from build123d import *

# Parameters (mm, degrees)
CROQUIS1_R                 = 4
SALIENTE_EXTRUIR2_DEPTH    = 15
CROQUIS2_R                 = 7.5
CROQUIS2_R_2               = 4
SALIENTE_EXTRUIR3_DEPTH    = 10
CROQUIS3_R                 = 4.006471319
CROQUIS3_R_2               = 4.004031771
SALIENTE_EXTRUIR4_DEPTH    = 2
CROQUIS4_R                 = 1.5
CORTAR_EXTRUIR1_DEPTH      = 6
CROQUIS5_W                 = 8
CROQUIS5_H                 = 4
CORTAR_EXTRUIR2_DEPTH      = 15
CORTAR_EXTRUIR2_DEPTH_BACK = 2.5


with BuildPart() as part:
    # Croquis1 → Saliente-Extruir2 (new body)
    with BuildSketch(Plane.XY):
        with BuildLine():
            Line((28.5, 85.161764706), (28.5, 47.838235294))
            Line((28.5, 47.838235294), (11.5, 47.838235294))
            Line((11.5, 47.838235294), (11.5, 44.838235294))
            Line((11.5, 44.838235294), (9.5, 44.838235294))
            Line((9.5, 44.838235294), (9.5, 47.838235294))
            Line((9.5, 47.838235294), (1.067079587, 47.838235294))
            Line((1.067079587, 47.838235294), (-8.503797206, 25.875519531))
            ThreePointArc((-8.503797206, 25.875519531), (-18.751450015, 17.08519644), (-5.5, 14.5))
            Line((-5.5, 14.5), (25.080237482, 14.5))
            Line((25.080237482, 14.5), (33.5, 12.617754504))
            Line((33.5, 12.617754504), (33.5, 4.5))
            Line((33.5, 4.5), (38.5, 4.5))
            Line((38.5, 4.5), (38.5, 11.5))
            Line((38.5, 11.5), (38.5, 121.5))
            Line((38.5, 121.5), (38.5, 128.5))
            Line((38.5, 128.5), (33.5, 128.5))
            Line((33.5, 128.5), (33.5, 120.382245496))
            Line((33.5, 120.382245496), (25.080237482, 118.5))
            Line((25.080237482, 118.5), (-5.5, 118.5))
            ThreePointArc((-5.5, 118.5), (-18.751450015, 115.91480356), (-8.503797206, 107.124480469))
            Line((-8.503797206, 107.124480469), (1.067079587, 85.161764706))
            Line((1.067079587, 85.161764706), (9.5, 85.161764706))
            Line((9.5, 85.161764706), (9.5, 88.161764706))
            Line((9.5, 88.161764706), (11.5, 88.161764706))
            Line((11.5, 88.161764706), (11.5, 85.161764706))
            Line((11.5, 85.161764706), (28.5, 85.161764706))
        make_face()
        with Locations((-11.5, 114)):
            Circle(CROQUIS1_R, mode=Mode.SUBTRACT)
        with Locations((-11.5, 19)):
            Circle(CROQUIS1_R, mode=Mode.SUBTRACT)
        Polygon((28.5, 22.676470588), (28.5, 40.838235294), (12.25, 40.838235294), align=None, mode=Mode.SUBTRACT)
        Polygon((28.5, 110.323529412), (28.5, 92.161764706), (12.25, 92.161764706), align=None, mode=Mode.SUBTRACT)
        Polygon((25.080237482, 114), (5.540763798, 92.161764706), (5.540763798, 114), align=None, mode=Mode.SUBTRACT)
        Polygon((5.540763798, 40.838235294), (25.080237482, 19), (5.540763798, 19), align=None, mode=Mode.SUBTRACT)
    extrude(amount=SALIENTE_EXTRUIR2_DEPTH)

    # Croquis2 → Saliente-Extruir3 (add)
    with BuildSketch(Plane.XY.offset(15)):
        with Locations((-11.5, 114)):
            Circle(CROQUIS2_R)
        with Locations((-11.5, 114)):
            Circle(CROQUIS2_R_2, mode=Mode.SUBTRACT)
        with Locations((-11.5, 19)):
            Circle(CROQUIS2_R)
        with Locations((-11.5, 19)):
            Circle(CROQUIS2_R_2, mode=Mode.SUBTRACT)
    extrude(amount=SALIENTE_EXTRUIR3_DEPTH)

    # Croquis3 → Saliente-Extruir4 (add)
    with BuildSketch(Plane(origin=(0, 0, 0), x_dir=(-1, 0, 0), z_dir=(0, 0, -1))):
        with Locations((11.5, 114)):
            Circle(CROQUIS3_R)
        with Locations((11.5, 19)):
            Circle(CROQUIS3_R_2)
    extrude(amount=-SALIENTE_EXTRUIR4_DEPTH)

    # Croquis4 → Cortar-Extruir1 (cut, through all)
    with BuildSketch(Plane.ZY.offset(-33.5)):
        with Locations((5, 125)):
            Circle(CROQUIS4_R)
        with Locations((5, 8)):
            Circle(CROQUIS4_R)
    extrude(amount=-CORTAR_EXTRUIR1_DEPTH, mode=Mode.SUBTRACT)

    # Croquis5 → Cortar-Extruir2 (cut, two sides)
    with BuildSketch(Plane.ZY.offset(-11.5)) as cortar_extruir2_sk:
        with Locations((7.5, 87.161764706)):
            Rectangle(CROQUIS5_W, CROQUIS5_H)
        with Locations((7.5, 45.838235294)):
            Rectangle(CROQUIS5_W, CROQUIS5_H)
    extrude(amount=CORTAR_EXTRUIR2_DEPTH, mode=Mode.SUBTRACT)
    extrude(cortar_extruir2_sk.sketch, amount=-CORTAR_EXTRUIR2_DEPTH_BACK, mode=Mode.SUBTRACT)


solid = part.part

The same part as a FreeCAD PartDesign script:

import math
import FreeCAD as App
import Part
import Sketcher

V = App.Vector

doc = App.newDocument("Part")
body = doc.addObject("PartDesign::Body", "Body")

sketch1 = body.newObject("Sketcher::SketchObject", "Sketch")
sketch1.AttachmentSupport = (doc.getObject("XY_Plane"), [""])
sketch1.MapMode = "FlatFace"
sketch1.addGeometry([
    Part.LineSegment(V(28.5, 85.161765, 0), V(28.5, 47.838235, 0)),
    Part.LineSegment(V(28.5, 47.838235, 0), V(11.5, 47.838235, 0)),
    Part.LineSegment(V(11.5, 47.838235, 0), V(11.5, 44.838235, 0)),
    Part.LineSegment(V(11.5, 44.838235, 0), V(9.5, 44.838235, 0)),
    Part.LineSegment(V(9.5, 44.838235, 0), V(9.5, 47.838235, 0)),
    Part.LineSegment(V(9.5, 47.838235, 0), V(1.06708, 47.838235, 0)),
    Part.LineSegment(V(1.06708, 47.838235, 0), V(-8.503797, 25.87552, 0)),
    Part.ArcOfCircle(Part.Circle(V(-11.5, 19, 0), V(0, 0, 1), 7.5), math.radians(66.453469), math.radians(323.130102)),
    Part.LineSegment(V(-5.5, 14.5, 0), V(25.080237, 14.5, 0)),
    Part.LineSegment(V(25.080237, 14.5, 0), V(33.5, 12.617755, 0)),
    Part.LineSegment(V(33.5, 12.617755, 0), V(33.5, 4.5, 0)),
    Part.LineSegment(V(33.5, 4.5, 0), V(38.5, 4.5, 0)),
    Part.LineSegment(V(38.5, 4.5, 0), V(38.5, 128.5, 0)),
    Part.LineSegment(V(38.5, 128.5, 0), V(33.5, 128.5, 0)),
    Part.LineSegment(V(33.5, 128.5, 0), V(33.5, 120.382245, 0)),
    Part.LineSegment(V(33.5, 120.382245, 0), V(25.080237, 118.5, 0)),
    Part.LineSegment(V(25.080237, 118.5, 0), V(-5.5, 118.5, 0)),
    Part.ArcOfCircle(Part.Circle(V(-11.5, 114, 0), V(0, 0, 1), 7.5), math.radians(36.869898), math.radians(293.546531)),
    Part.LineSegment(V(-8.503797, 107.12448, 0), V(1.06708, 85.161765, 0)),
    Part.LineSegment(V(1.06708, 85.161765, 0), V(9.5, 85.161765, 0)),
    Part.LineSegment(V(9.5, 85.161765, 0), V(9.5, 88.161765, 0)),
    Part.LineSegment(V(9.5, 88.161765, 0), V(11.5, 88.161765, 0)),
    Part.LineSegment(V(11.5, 88.161765, 0), V(11.5, 85.161765, 0)),
    Part.LineSegment(V(11.5, 85.161765, 0), V(28.5, 85.161765, 0)),
    Part.Circle(V(-11.5, 19, 0), V(0, 0, 1), 4),
    Part.LineSegment(V(5.540764, 19, 0), V(5.540764, 40.838235, 0)),
    Part.LineSegment(V(5.540764, 40.838235, 0), V(25.080237, 19, 0)),
    Part.LineSegment(V(25.080237, 19, 0), V(5.540764, 19, 0)),
    Part.LineSegment(V(28.5, 40.838235, 0), V(28.5, 22.676471, 0)),
    Part.LineSegment(V(28.5, 22.676471, 0), V(12.25, 40.838235, 0)),
    Part.LineSegment(V(12.25, 40.838235, 0), V(28.5, 40.838235, 0)),
    Part.Circle(V(-11.5, 114, 0), V(0, 0, 1), 4),
    Part.LineSegment(V(5.540764, 114, 0), V(25.080237, 114, 0)),
    Part.LineSegment(V(25.080237, 114, 0), V(5.540764, 92.161765, 0)),
    Part.LineSegment(V(5.540764, 92.161765, 0), V(5.540764, 114, 0)),
    Part.LineSegment(V(12.25, 92.161765, 0), V(28.5, 110.323529, 0)),
    Part.LineSegment(V(28.5, 110.323529, 0), V(28.5, 92.161765, 0)),
    Part.LineSegment(V(28.5, 92.161765, 0), V(12.25, 92.161765, 0)),
], False)
sketch1.addConstraint([
    Sketcher.Constraint("Coincident", 0, 2, 1, 1),
    Sketcher.Constraint("Coincident", 1, 2, 2, 1),
    Sketcher.Constraint("Coincident", 2, 2, 3, 1),
    Sketcher.Constraint("Coincident", 3, 2, 4, 1),
    Sketcher.Constraint("Coincident", 4, 2, 5, 1),
    Sketcher.Constraint("Coincident", 5, 2, 6, 1),
    Sketcher.Constraint("Coincident", 6, 2, 7, 1),
    Sketcher.Constraint("Coincident", 7, 2, 8, 1),
    Sketcher.Constraint("Coincident", 8, 2, 9, 1),
    Sketcher.Constraint("Coincident", 9, 2, 10, 1),
    Sketcher.Constraint("Coincident", 10, 2, 11, 1),
    Sketcher.Constraint("Coincident", 11, 2, 12, 1),
    Sketcher.Constraint("Coincident", 12, 2, 13, 1),
    Sketcher.Constraint("Coincident", 13, 2, 14, 1),
    Sketcher.Constraint("Coincident", 14, 2, 15, 1),
    Sketcher.Constraint("Coincident", 15, 2, 16, 1),
    Sketcher.Constraint("Coincident", 16, 2, 17, 1),
    Sketcher.Constraint("Coincident", 17, 2, 18, 1),
    Sketcher.Constraint("Coincident", 18, 2, 19, 1),
    Sketcher.Constraint("Coincident", 19, 2, 20, 1),
    Sketcher.Constraint("Coincident", 20, 2, 21, 1),
    Sketcher.Constraint("Coincident", 21, 2, 22, 1),
    Sketcher.Constraint("Coincident", 22, 2, 23, 1),
    Sketcher.Constraint("Coincident", 23, 2, 0, 1),
    Sketcher.Constraint("Coincident", 25, 2, 26, 1),
    Sketcher.Constraint("Coincident", 26, 2, 27, 1),
    Sketcher.Constraint("Coincident", 27, 2, 25, 1),
    Sketcher.Constraint("Coincident", 28, 2, 29, 1),
    Sketcher.Constraint("Coincident", 29, 2, 30, 1),
    Sketcher.Constraint("Coincident", 30, 2, 28, 1),
    Sketcher.Constraint("Coincident", 32, 2, 33, 1),
    Sketcher.Constraint("Coincident", 33, 2, 34, 1),
    Sketcher.Constraint("Coincident", 34, 2, 32, 1),
    Sketcher.Constraint("Coincident", 35, 2, 36, 1),
    Sketcher.Constraint("Coincident", 36, 2, 37, 1),
    Sketcher.Constraint("Coincident", 37, 2, 35, 1),
    Sketcher.Constraint("Vertical", 0),
    Sketcher.Constraint("Horizontal", 1),
    Sketcher.Constraint("Vertical", 2),
    Sketcher.Constraint("Horizontal", 3),
    Sketcher.Constraint("Vertical", 4),
    Sketcher.Constraint("Horizontal", 5),
    Sketcher.Constraint("Horizontal", 8),
    Sketcher.Constraint("Vertical", 10),
    Sketcher.Constraint("Horizontal", 11),
    Sketcher.Constraint("Vertical", 12),
    Sketcher.Constraint("Horizontal", 13),
    Sketcher.Constraint("Vertical", 14),
    Sketcher.Constraint("Horizontal", 16),
    Sketcher.Constraint("Horizontal", 19),
    Sketcher.Constraint("Vertical", 20),
    Sketcher.Constraint("Horizontal", 21),
    Sketcher.Constraint("Vertical", 22),
    Sketcher.Constraint("Horizontal", 23),
    Sketcher.Constraint("Vertical", 25),
    Sketcher.Constraint("Horizontal", 27),
    Sketcher.Constraint("Vertical", 28),
    Sketcher.Constraint("Horizontal", 30),
    Sketcher.Constraint("Horizontal", 32),
    Sketcher.Constraint("Vertical", 34),
    Sketcher.Constraint("Vertical", 36),
    Sketcher.Constraint("Horizontal", 37),
    Sketcher.Constraint("Coincident", 24, 3, 7, 3),
    Sketcher.Constraint("Coincident", 31, 3, 17, 3),
    Sketcher.Constraint("Equal", 7, 17),
    Sketcher.Constraint("Equal", 24, 31),
    Sketcher.Constraint("Parallel", 26, 29),
    Sketcher.Constraint("Parallel", 33, 35),
    Sketcher.Constraint("Horizontal", 1, 2, 4, 2),
    Sketcher.Constraint("Horizontal", 19, 2, 22, 2),
    Sketcher.Constraint("Horizontal", 24, 3, 26, 2),
    Sketcher.Constraint("Horizontal", 25, 2, 29, 2),
    Sketcher.Constraint("Horizontal", 31, 3, 32, 2),
    Sketcher.Constraint("Horizontal", 33, 2, 36, 2),
    Sketcher.Constraint("Vertical", 7, 3, 17, 3),
    Sketcher.Constraint("Vertical", 10, 2, 13, 2),
    Sketcher.Constraint("Vertical", 8, 2, 15, 2),
    Sketcher.Constraint("Vertical", 7, 2, 16, 2),
    Sketcher.Constraint("Vertical", 6, 2, 17, 2),
    Sketcher.Constraint("Vertical", 5, 2, 18, 2),
    Sketcher.Constraint("Vertical", 4, 2, 19, 2),
    Sketcher.Constraint("Vertical", 2, 2, 21, 2),
    Sketcher.Constraint("Vertical", 15, 2, 26, 2),
    Sketcher.Constraint("Vertical", 23, 2, 28, 2),
    Sketcher.Constraint("Vertical", 26, 2, 32, 2),
    Sketcher.Constraint("Vertical", 27, 2, 33, 2),
    Sketcher.Constraint("Vertical", 30, 2, 35, 2),
    Sketcher.Constraint("Vertical", 29, 2, 37, 2),
    Sketcher.Constraint("Equal", 10, 14),
    Sketcher.Constraint("Equal", 4, 20),
    Sketcher.Constraint("Equal", 25, 34),
    Sketcher.Constraint("Equal", 9, 15),
    Sketcher.Constraint("Equal", 6, 18),
    Sketcher.Constraint("Diameter", 24, 8.0),
    Sketcher.Constraint("Radius", 7, 7.5),
    Sketcher.Constraint("DistanceX", 1, 2, 1, 1, 17.0),
    Sketcher.Constraint("DistanceX", 3, 2, 3, 1, 2.0),
    Sketcher.Constraint("DistanceX", 11, 1, 11, 2, 5.0),
    Sketcher.Constraint("DistanceY", 2, 2, 2, 1, 3.0),
    Sketcher.Constraint("DistanceY", 12, 1, 12, 2, 124.0),
    Sketcher.Constraint("DistanceY", -1, 1, 7, 3, 19.0),
    Sketcher.Constraint("DistanceY", -1, 1, 17, 3, 114.0),
    Sketcher.Constraint("DistanceX", 7, 3, 0, 2, 40.0),
    Sketcher.Constraint("DistanceX", 7, 3, 7, 2, 6.0),
    Sketcher.Constraint("DistanceX", 0, 2, 9, 2, 5.0),
    Sketcher.Constraint("DistanceY", 25, 2, 3, 2, 4.0),
    Sketcher.Constraint("DistanceX", 30, 1, 30, 2, 16.25),
    Sketcher.Constraint("DistanceX", 7, 3, -1, 1, 11.5),
    Sketcher.Constraint("DistanceX", 5, 2, 5, 1, 8.43292),
    Sketcher.Constraint("DistanceY", 0, 2, 0, 1, 37.323529),
    Sketcher.Constraint("DistanceX", 8, 1, 8, 2, 30.580237),
    Sketcher.Constraint("DistanceX", 27, 2, 27, 1, 19.539474),
    Sketcher.Constraint("DistanceY", 10, 2, 10, 1, 8.117755),
    Sketcher.Constraint("DistanceY", -1, 1, 6, 2, 25.87552),
])
pad1 = body.newObject("PartDesign::Pad", "Pad")
pad1.Profile = sketch1
pad1.Length = 15

sketch2 = body.newObject("Sketcher::SketchObject", "Sketch001")
sketch2.AttachmentSupport = (doc.getObject("XY_Plane"), [""])
sketch2.MapMode = "FlatFace"
sketch2.AttachmentOffset = App.Placement(V(0, 0, 15), App.Rotation())
sketch2.addGeometry([
    Part.Circle(V(-11.5, 114, 0), V(0, 0, 1), 7.5),
    Part.Circle(V(-11.5, 114, 0), V(0, 0, 1), 4),
    Part.Circle(V(-11.5, 19, 0), V(0, 0, 1), 7.5),
    Part.Circle(V(-11.5, 19, 0), V(0, 0, 1), 4),
], False)
sketch2.addConstraint([
    Sketcher.Constraint("Coincident", 1, 3, 0, 3),
    Sketcher.Constraint("Coincident", 3, 3, 2, 3),
    Sketcher.Constraint("Equal", 0, 2),
    Sketcher.Constraint("Equal", 1, 3),
    Sketcher.Constraint("Vertical", 1, 3, 2, 3),
    Sketcher.Constraint("Diameter", 0, 15.0),
    Sketcher.Constraint("Diameter", 1, 8.0),
    Sketcher.Constraint("DistanceY", -1, 1, 0, 3, 114.0),
    Sketcher.Constraint("DistanceY", -1, 1, 2, 3, 19.0),
    Sketcher.Constraint("DistanceX", 0, 3, -1, 1, 11.5),
])
pad2 = body.newObject("PartDesign::Pad", "Pad001")
pad2.Profile = sketch2
pad2.Length = 10

sketch3 = body.newObject("Sketcher::SketchObject", "Sketch002")
sketch3.AttachmentSupport = (doc.getObject("XY_Plane"), [""])
sketch3.MapMode = "FlatFace"
sketch3.addGeometry([
    Part.Circle(V(-11.5, 114, 0), V(0, 0, 1), 4.006471),
    Part.Circle(V(-11.5, 19, 0), V(0, 0, 1), 4.004032),
], False)
sketch3.addConstraint([
    Sketcher.Constraint("Vertical", 0, 3, 1, 3),
    Sketcher.Constraint("DistanceY", -1, 1, 0, 3, 114.0),
    Sketcher.Constraint("DistanceY", -1, 1, 1, 3, 19.0),
    Sketcher.Constraint("DistanceX", 0, 3, -1, 1, 11.5),
    Sketcher.Constraint("Diameter", 0, 8.012943),
    Sketcher.Constraint("Diameter", 1, 8.008064),
])
pad3 = body.newObject("PartDesign::Pad", "Pad002")
pad3.Profile = sketch3
pad3.Length = 2

sketch4 = body.newObject("Sketcher::SketchObject", "Sketch003")
sketch4.AttachmentSupport = (doc.getObject("YZ_Plane"), [""])
sketch4.MapMode = "FlatFace"
sketch4.AttachmentOffset = App.Placement(V(0, 0, 33.5), App.Rotation())
sketch4.addGeometry([
    Part.Circle(V(125, 5, 0), V(0, 0, 1), 1.5),
    Part.Circle(V(8, 5, 0), V(0, 0, 1), 1.5),
], False)
sketch4.addConstraint([
    Sketcher.Constraint("Equal", 0, 1),
    Sketcher.Constraint("Horizontal", 0, 3, 1, 3),
    Sketcher.Constraint("Diameter", 0, 3.0),
    Sketcher.Constraint("DistanceX", -1, 1, 0, 3, 125.0),
    Sketcher.Constraint("DistanceY", -1, 1, 0, 3, 5.0),
    Sketcher.Constraint("DistanceX", -1, 1, 1, 3, 8.0),
])
pocket1 = body.newObject("PartDesign::Pocket", "Pocket")
pocket1.Profile = sketch4
pocket1.Type = "ThroughAll"
pocket1.Reversed = True

sketch5 = body.newObject("Sketcher::SketchObject", "Sketch004")
sketch5.AttachmentSupport = (doc.getObject("YZ_Plane"), [""])
sketch5.MapMode = "FlatFace"
sketch5.AttachmentOffset = App.Placement(V(0, 0, 11.5), App.Rotation())
sketch5.addGeometry([
    Part.LineSegment(V(89.161765, 3.5, 0), V(85.161765, 3.5, 0)),
    Part.LineSegment(V(85.161765, 3.5, 0), V(85.161765, 11.5, 0)),
    Part.LineSegment(V(85.161765, 11.5, 0), V(89.161765, 11.5, 0)),
    Part.LineSegment(V(89.161765, 11.5, 0), V(89.161765, 3.5, 0)),
    Part.LineSegment(V(47.838235, 3.5, 0), V(43.838235, 3.5, 0)),
    Part.LineSegment(V(43.838235, 3.5, 0), V(43.838235, 11.5, 0)),
    Part.LineSegment(V(43.838235, 11.5, 0), V(47.838235, 11.5, 0)),
    Part.LineSegment(V(47.838235, 11.5, 0), V(47.838235, 3.5, 0)),
], False)
sketch5.addConstraint([
    Sketcher.Constraint("Coincident", 0, 2, 1, 1),
    Sketcher.Constraint("Coincident", 1, 2, 2, 1),
    Sketcher.Constraint("Coincident", 2, 2, 3, 1),
    Sketcher.Constraint("Coincident", 3, 2, 0, 1),
    Sketcher.Constraint("Coincident", 4, 2, 5, 1),
    Sketcher.Constraint("Coincident", 5, 2, 6, 1),
    Sketcher.Constraint("Coincident", 6, 2, 7, 1),
    Sketcher.Constraint("Coincident", 7, 2, 4, 1),
    Sketcher.Constraint("Horizontal", 0),
    Sketcher.Constraint("Vertical", 1),
    Sketcher.Constraint("Horizontal", 2),
    Sketcher.Constraint("Vertical", 3),
    Sketcher.Constraint("Horizontal", 4),
    Sketcher.Constraint("Vertical", 5),
    Sketcher.Constraint("Horizontal", 6),
    Sketcher.Constraint("Vertical", 7),
    Sketcher.Constraint("Horizontal", 3, 2, 4, 2),
    Sketcher.Constraint("Horizontal", 2, 2, 5, 2),
    Sketcher.Constraint("Equal", 2, 4),
    Sketcher.Constraint("DistanceX", 0, 2, 0, 1, 4.0),
    Sketcher.Constraint("DistanceY", 1, 1, 1, 2, 8.0),
    Sketcher.Constraint("DistanceY", -1, 1, 0, 2, 3.5),
    Sketcher.Constraint("DistanceX", 4, 2, 0, 2, 41.323529),
    Sketcher.Constraint("DistanceX", -1, 1, 0, 2, 85.161765),
])
pocket2 = body.newObject("PartDesign::Pocket", "Pocket001")
pocket2.Profile = sketch5
pocket2.Type = "TwoLengths"
pocket2.Length = 15
pocket2.Length2 = 2.5

doc.recompute()
